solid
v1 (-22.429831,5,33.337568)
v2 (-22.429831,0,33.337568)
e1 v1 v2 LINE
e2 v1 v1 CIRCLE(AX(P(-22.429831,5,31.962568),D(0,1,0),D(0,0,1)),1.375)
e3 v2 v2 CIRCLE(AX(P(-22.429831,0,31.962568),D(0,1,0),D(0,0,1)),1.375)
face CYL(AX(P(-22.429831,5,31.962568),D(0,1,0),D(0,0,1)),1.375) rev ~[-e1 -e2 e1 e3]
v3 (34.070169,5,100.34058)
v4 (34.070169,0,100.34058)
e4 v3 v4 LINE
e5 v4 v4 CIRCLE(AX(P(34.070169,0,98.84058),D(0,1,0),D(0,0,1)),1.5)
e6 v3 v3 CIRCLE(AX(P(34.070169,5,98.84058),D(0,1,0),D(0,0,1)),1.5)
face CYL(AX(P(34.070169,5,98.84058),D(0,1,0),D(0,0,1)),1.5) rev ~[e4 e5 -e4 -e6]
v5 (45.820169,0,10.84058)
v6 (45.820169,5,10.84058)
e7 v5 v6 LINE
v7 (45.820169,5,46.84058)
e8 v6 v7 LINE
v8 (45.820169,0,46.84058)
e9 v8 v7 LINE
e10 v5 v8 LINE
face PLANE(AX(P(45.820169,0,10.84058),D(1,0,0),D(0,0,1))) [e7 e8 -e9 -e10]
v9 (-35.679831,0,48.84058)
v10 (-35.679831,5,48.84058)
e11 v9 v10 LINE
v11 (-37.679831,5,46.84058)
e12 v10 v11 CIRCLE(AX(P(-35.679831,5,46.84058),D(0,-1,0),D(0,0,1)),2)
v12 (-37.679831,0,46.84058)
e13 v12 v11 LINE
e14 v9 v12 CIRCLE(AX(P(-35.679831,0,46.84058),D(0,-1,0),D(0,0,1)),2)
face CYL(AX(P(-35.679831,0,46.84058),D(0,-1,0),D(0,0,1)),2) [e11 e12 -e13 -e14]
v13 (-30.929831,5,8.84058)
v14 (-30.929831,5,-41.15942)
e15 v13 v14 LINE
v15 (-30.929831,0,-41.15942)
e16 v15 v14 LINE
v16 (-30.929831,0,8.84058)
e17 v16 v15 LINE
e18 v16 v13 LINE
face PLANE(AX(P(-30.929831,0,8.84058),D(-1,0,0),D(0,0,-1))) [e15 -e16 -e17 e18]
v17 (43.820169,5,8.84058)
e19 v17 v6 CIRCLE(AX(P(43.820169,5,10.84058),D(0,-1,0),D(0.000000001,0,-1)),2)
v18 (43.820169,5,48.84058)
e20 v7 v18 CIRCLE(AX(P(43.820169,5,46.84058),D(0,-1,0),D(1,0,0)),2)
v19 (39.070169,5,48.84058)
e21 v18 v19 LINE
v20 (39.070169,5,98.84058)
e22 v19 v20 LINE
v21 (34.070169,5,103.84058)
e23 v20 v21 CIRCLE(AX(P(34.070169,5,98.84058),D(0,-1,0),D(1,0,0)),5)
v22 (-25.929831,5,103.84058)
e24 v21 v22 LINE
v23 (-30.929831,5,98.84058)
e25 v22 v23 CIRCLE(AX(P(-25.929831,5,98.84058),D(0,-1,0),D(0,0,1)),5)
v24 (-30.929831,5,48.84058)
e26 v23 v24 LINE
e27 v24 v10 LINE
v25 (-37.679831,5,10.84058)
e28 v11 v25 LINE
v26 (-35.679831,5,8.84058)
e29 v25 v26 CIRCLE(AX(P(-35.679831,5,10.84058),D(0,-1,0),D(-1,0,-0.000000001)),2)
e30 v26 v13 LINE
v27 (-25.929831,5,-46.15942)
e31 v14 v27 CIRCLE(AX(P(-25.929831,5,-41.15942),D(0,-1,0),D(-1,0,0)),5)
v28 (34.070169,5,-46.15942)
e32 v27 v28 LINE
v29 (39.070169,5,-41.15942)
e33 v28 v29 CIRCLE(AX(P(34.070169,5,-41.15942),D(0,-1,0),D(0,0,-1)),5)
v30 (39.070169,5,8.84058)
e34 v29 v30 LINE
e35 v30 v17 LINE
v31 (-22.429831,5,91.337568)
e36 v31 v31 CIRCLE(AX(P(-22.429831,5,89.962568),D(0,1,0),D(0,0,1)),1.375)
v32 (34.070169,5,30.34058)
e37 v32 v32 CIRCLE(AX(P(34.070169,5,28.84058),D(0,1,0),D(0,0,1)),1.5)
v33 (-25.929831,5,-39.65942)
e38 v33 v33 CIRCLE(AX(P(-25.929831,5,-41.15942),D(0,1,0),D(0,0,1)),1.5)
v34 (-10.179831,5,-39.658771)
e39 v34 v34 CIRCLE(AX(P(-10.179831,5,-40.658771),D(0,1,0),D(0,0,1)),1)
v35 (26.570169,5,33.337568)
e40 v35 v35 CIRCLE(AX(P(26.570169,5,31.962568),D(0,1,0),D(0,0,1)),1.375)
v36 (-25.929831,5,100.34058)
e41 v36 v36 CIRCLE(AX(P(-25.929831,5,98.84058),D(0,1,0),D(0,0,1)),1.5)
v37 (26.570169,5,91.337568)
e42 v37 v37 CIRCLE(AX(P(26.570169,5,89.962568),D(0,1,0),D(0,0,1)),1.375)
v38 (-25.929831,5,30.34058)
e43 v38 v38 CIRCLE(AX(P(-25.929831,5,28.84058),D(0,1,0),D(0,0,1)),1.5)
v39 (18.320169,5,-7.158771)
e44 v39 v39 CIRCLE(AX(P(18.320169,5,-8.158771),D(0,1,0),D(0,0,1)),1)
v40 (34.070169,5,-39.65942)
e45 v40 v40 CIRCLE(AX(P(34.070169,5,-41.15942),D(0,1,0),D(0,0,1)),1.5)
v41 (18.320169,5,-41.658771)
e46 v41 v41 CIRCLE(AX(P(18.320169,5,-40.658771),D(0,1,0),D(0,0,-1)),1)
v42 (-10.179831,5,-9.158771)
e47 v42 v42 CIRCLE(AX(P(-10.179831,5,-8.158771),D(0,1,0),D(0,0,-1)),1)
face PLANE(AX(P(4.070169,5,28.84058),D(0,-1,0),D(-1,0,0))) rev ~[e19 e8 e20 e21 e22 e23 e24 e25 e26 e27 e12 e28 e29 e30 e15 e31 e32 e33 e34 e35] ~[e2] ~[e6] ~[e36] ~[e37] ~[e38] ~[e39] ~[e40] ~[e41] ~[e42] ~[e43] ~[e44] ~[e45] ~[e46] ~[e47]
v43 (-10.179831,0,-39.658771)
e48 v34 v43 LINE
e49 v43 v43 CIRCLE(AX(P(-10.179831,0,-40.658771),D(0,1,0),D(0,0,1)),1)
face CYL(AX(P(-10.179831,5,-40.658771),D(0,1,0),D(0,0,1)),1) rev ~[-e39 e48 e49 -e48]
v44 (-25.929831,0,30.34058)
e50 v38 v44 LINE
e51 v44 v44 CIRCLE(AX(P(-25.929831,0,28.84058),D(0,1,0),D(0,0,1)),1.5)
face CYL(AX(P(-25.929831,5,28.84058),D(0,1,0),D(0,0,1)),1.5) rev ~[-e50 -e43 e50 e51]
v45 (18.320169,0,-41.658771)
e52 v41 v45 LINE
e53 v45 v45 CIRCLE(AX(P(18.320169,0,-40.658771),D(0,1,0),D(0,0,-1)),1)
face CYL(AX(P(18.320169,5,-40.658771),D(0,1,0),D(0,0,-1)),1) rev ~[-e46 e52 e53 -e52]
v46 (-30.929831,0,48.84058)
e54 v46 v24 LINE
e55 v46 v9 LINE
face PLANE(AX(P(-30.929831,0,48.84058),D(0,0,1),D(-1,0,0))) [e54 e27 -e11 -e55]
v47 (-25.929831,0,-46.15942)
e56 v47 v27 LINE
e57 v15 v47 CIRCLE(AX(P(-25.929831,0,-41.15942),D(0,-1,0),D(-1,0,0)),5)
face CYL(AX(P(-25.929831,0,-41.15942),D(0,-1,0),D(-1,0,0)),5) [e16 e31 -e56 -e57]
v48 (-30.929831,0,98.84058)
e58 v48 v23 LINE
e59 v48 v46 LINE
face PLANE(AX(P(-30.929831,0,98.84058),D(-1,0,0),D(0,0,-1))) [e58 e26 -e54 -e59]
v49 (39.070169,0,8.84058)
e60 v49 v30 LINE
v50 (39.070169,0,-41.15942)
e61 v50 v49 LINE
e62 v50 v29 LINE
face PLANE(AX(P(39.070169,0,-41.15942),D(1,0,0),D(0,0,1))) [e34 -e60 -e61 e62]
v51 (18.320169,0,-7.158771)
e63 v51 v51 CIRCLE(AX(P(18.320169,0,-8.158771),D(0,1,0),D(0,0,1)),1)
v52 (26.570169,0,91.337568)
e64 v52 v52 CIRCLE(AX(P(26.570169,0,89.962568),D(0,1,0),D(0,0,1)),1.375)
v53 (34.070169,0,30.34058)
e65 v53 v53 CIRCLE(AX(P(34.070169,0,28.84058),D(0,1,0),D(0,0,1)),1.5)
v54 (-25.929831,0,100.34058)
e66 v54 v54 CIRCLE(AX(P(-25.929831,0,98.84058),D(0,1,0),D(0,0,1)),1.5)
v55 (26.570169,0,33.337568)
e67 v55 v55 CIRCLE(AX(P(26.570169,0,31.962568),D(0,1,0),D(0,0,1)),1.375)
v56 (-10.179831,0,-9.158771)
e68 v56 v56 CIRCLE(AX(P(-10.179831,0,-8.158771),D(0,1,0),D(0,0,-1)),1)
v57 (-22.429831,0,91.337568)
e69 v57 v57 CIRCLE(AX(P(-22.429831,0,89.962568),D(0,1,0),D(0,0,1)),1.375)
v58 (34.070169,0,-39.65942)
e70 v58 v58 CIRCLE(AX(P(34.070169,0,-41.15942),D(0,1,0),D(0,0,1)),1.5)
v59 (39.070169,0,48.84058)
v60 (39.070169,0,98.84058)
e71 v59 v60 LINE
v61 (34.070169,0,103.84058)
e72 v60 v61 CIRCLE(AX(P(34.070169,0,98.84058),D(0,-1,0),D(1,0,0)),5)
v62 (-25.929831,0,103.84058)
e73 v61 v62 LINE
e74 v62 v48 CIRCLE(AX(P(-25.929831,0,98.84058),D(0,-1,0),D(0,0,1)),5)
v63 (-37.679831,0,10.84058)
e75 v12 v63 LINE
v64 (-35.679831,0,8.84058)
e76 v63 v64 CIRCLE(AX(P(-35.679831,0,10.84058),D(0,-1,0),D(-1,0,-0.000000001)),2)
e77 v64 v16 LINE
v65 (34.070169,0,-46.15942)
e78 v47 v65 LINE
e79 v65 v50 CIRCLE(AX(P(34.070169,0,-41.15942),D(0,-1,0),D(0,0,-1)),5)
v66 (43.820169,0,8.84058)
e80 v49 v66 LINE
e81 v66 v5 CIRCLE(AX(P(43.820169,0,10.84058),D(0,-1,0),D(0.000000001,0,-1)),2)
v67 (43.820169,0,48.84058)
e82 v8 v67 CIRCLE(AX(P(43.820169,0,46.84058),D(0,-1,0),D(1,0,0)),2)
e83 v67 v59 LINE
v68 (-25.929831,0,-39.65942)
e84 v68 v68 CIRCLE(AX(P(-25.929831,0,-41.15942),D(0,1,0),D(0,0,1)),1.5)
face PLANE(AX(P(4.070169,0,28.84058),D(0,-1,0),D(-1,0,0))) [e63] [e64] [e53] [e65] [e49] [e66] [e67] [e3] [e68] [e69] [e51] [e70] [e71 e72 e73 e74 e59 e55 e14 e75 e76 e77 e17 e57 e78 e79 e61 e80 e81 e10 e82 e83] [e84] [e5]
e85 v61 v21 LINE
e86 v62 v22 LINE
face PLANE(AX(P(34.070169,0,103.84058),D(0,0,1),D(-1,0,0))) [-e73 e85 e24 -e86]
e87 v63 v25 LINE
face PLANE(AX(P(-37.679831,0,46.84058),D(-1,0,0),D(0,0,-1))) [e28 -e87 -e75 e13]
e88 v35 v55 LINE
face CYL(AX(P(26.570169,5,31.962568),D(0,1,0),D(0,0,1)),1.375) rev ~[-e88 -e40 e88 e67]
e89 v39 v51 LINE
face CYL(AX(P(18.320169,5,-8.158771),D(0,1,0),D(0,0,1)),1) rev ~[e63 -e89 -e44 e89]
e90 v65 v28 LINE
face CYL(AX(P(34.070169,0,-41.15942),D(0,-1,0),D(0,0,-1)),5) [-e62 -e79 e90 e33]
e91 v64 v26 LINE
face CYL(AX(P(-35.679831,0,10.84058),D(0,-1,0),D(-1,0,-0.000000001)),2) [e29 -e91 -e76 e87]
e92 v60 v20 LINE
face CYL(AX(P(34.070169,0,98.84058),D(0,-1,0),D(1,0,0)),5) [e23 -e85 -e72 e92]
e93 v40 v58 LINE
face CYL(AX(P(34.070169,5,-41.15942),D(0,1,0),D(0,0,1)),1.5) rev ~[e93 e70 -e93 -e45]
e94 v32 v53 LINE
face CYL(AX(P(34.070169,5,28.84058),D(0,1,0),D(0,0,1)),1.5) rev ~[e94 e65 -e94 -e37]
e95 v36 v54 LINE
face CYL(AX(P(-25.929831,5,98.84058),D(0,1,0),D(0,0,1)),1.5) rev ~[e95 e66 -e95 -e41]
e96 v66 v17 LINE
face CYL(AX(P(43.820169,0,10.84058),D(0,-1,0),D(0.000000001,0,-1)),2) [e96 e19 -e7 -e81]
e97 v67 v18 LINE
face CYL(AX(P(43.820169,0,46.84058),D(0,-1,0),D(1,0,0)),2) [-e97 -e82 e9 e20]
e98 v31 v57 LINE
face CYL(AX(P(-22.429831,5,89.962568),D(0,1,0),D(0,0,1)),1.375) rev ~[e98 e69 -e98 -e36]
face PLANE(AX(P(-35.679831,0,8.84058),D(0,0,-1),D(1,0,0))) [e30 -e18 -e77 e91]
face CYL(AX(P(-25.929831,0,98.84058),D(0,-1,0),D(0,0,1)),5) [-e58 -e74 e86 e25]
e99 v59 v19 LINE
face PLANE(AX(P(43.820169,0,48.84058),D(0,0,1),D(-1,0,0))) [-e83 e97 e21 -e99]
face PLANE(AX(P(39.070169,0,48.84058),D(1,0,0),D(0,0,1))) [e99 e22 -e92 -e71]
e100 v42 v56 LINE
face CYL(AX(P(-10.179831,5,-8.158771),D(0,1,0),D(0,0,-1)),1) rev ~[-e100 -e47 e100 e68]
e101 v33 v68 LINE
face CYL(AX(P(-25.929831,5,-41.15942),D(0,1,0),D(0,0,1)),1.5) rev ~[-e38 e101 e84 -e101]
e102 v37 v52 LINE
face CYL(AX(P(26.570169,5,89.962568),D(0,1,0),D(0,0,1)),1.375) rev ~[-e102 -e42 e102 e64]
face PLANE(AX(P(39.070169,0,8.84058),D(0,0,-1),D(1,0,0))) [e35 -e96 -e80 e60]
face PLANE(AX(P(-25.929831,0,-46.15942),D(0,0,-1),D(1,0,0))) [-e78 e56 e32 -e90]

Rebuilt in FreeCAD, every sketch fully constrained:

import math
import FreeCAD as App
import Part
import Sketcher
from FreeCAD import Vector

doc = App.newDocument("Part")
body = doc.addObject("PartDesign::Body", "Body")

# Sketch on XZ plane
sketch1 = body.newObject("Sketcher::SketchObject", "Sketch")
sketch1.AttachmentSupport = (doc.getObject("XZ_Plane"), [""])
sketch1.MapMode = "FlatFace"
sketch1.addGeometry([
    Part.LineSegment(Vector(34.070169, -46.15942, 0), Vector(-25.929831, -46.15942, 0)),  # 0
    Part.ArcOfCircle(Part.Circle(Vector(-25.929831, -41.15942, 0), Vector(0, 0, 1), 5), math.radians(180), math.radians(270)),  # 1
    Part.LineSegment(Vector(-30.929831, -41.15942, 0), Vector(-30.929831, 8.84058, 0)),  # 2
    Part.LineSegment(Vector(-30.929831, 8.84058, 0), Vector(-35.679831, 8.84058, 0)),  # 3
    Part.ArcOfCircle(Part.Circle(Vector(-35.679831, 10.84058, 0), Vector(0, 0, 1), 2), math.radians(-180), math.radians(-90)),  # 4
    Part.LineSegment(Vector(-37.679831, 10.84058, 0), Vector(-37.679831, 46.84058, 0)),  # 5
    Part.ArcOfCircle(Part.Circle(Vector(-35.679831, 46.84058, 0), Vector(0, 0, 1), 2), math.radians(90), math.radians(180)),  # 6
    Part.LineSegment(Vector(-35.679831, 48.84058, 0), Vector(-30.929831, 48.84058, 0)),  # 7
    Part.LineSegment(Vector(-30.929831, 48.84058, 0), Vector(-30.929831, 98.84058, 0)),  # 8
    Part.ArcOfCircle(Part.Circle(Vector(-25.929831, 98.84058, 0), Vector(0, 0, 1), 5), math.radians(90), math.radians(180)),  # 9
    Part.LineSegment(Vector(-25.929831, 103.84058, 0), Vector(34.070169, 103.84058, 0)),  # 10
    Part.ArcOfCircle(Part.Circle(Vector(34.070169, 98.84058, 0), Vector(0, 0, 1), 5), math.radians(0), math.radians(90)),  # 11
    Part.LineSegment(Vector(39.070169, 98.84058, 0), Vector(39.070169, 48.84058, 0)),  # 12
    Part.LineSegment(Vector(39.070169, 48.84058, 0), Vector(43.820169, 48.84058, 0)),  # 13
    Part.ArcOfCircle(Part.Circle(Vector(43.820169, 46.84058, 0), Vector(0, 0, 1), 2), math.radians(0), math.radians(90)),  # 14
    Part.LineSegment(Vector(45.820169, 46.84058, 0), Vector(45.820169, 10.84058, 0)),  # 15
    Part.ArcOfCircle(Part.Circle(Vector(43.820169, 10.84058, 0), Vector(0, 0, 1), 2), math.radians(-90), math.radians(0)),  # 16
    Part.LineSegment(Vector(43.820169, 8.84058, 0), Vector(39.070169, 8.84058, 0)),  # 17
    Part.LineSegment(Vector(39.070169, 8.84058, 0), Vector(39.070169, -41.15942, 0)),  # 18
    Part.ArcOfCircle(Part.Circle(Vector(34.070169, -41.15942, 0), Vector(0, 0, 1), 5), math.radians(-90), math.radians(0)),  # 19
], False)
sketch1.addConstraint([
    Sketcher.Constraint("Tangent", 0, 2, 1, 2),
    Sketcher.Constraint("Tangent", 1, 1, 2, 1),
    Sketcher.Constraint("Coincident", 2, 2, 3, 1),
    Sketcher.Constraint("Tangent", 3, 2, 4, 2),
    Sketcher.Constraint("Tangent", 4, 1, 5, 1),
    Sketcher.Constraint("Tangent", 5, 2, 6, 2),
    Sketcher.Constraint("Tangent", 6, 1, 7, 1),
    Sketcher.Constraint("Coincident", 7, 2, 8, 1),
    Sketcher.Constraint("Tangent", 8, 2, 9, 2),
    Sketcher.Constraint("Tangent", 9, 1, 10, 1),
    Sketcher.Constraint("Tangent", 10, 2, 11, 2),
    Sketcher.Constraint("Tangent", 11, 1, 12, 1),
    Sketcher.Constraint("Coincident", 12, 2, 13, 1),
    Sketcher.Constraint("Tangent", 13, 2, 14, 2),
    Sketcher.Constraint("Tangent", 14, 1, 15, 1),
    Sketcher.Constraint("Tangent", 15, 2, 16, 2),
    Sketcher.Constraint("Tangent", 16, 1, 17, 1),
    Sketcher.Constraint("Coincident", 17, 2, 18, 1),
    Sketcher.Constraint("Tangent", 18, 2, 19, 2),
    Sketcher.Constraint("Tangent", 19, 1, 0, 1),
    Sketcher.Constraint("Horizontal", 0),
    Sketcher.Constraint("Vertical", 2),
    Sketcher.Constraint("Horizontal", 3),
    Sketcher.Constraint("Vertical", 5),
    Sketcher.Constraint("Horizontal", 7),
    Sketcher.Constraint("Vertical", 8),
    Sketcher.Constraint("Horizontal", 10),
    Sketcher.Constraint("Vertical", 12),
    Sketcher.Constraint("Horizontal", 13),
    Sketcher.Constraint("Vertical", 15),
    Sketcher.Constraint("Horizontal", 17),
    Sketcher.Constraint("Vertical", 18),
    Sketcher.Constraint("Equal", 4, 6),
    Sketcher.Constraint("Equal", 1, 9),
    Sketcher.Constraint("Equal", 9, 11),
    Sketcher.Constraint("Equal", 6, 14),
    Sketcher.Constraint("Equal", 14, 16),
    Sketcher.Constraint("Equal", 11, 19),
    Sketcher.Constraint("Horizontal", 6, 3, 14, 3),
    Sketcher.Constraint("Horizontal", 4, 3, 16, 3),
    Sketcher.Constraint("Vertical", 1, 3, 9, 3),
    Sketcher.Constraint("Vertical", 11, 3, 19, 3),
    Sketcher.Constraint("Equal", 7, 13),
    Sketcher.Constraint("Equal", 2, 8),
    Sketcher.Constraint("Radius", 1, 5.0),
    Sketcher.Constraint("Radius", 4, 2.0),
    Sketcher.Constraint("DistanceX", 0, 2, 0, 1, 60.0),
    Sketcher.Constraint("DistanceY", 2, 1, 2, 2, 50.0),
    Sketcher.Constraint("DistanceY", 5, 1, 5, 2, 36.0),
    Sketcher.Constraint("DistanceX", 3, 2, 3, 1, 4.75),
    Sketcher.Constraint("DistanceX", 1, 3, -1, 1, 25.929831),
    Sketcher.Constraint("DistanceY", 1, 3, -1, 1, 41.15942),
])
pad1 = body.newObject("PartDesign::Pad", "Pad")
pad1.Profile = sketch1
pad1.Length = 5
pad1.Reversed = True

# Sketch on XZ plane
sketch2 = body.newObject("Sketcher::SketchObject", "Sketch001")
sketch2.AttachmentSupport = (doc.getObject("XZ_Plane"), [""])
sketch2.MapMode = "FlatFace"
sketch2.AttachmentOffset = App.Placement(Vector(0, 0, -5), App.Rotation())
sketch2.addGeometry([
    Part.Circle(Vector(34.070169, -41.15942, 0), Vector(0, 0, 1), 1.5),  # 0
    Part.Circle(Vector(-25.929831, -41.15942, 0), Vector(0, 0, 1), 1.5),  # 1
    Part.Circle(Vector(-25.929831, 98.84058, 0), Vector(0, 0, 1), 1.5),  # 2
    Part.Circle(Vector(34.070169, 98.84058, 0), Vector(0, 0, 1), 1.5),  # 3
    Part.Circle(Vector(34.070169, 28.84058, 0), Vector(0, 0, 1), 1.5),  # 4
    Part.Circle(Vector(-25.929831, 28.84058, 0), Vector(0, 0, 1), 1.5),  # 5
    Part.Circle(Vector(26.570169, 31.962568, 0), Vector(0, 0, 1), 1.375),  # 6
    Part.Circle(Vector(-22.429831, 31.962568, 0), Vector(0, 0, 1), 1.375),  # 7
    Part.Circle(Vector(26.570169, 89.962568, 0), Vector(0, 0, 1), 1.375),  # 8
    Part.Circle(Vector(-22.429831, 89.962568, 0), Vector(0, 0, 1), 1.375),  # 9
    Part.Circle(Vector(-10.179831, -40.658771, 0), Vector(0, 0, 1), 1),  # 10
    Part.Circle(Vector(18.320169, -40.658771, 0), Vector(0, 0, 1), 1),  # 11
    Part.Circle(Vector(-10.179831, -8.158771, 0), Vector(0, 0, 1), 1),  # 12
    Part.Circle(Vector(18.320169, -8.158771, 0), Vector(0, 0, 1), 1),  # 13
], False)
sketch2.addConstraint([
    Sketcher.Constraint("Equal", 0, 1),
    Sketcher.Constraint("Equal", 1, 2),
    Sketcher.Constraint("Equal", 2, 3),
    Sketcher.Constraint("Equal", 3, 4),
    Sketcher.Constraint("Equal", 4, 5),
    Sketcher.Constraint("Equal", 6, 7),
    Sketcher.Constraint("Equal", 7, 8),
    Sketcher.Constraint("Equal", 8, 9),
    Sketcher.Constraint("Equal", 10, 11),
    Sketcher.Constraint("Equal", 11, 12),
    Sketcher.Constraint("Equal", 12, 13),
    Sketcher.Constraint("Horizontal", 0, 3, 1, 3),
    Sketcher.Constraint("Horizontal", 2, 3, 3, 3),
    Sketcher.Constraint("Horizontal", 4, 3, 5, 3),
    Sketcher.Constraint("Horizontal", 6, 3, 7, 3),
    Sketcher.Constraint("Horizontal", 8, 3, 9, 3),
    Sketcher.Constraint("Horizontal", 10, 3, 11, 3),
    Sketcher.Constraint("Horizontal", 12, 3, 13, 3),
    Sketcher.Constraint("Vertical", 1, 3, 2, 3),
    Sketcher.Constraint("Vertical", 0, 3, 3, 3),
    Sketcher.Constraint("Vertical", 3, 3, 4, 3),
    Sketcher.Constraint("Vertical", 2, 3, 5, 3),
    Sketcher.Constraint("Vertical", 6, 3, 8, 3),
    Sketcher.Constraint("Vertical", 7, 3, 9, 3),
    Sketcher.Constraint("Vertical", 10, 3, 12, 3),
    Sketcher.Constraint("Vertical", 11, 3, 13, 3),
    Sketcher.Constraint("Diameter", 0, 3.0),
    Sketcher.Constraint("Diameter", 10, 2.0),
    Sketcher.Constraint("Diameter", 6, 2.75),
    Sketcher.Constraint("DistanceX", 1, 3, 0, 3, 60.0),
    Sketcher.Constraint("DistanceY", 1, 3, 2, 3, 140.0),
    Sketcher.Constraint("DistanceY", 0, 3, 4, 3, 70.0),
    Sketcher.Constraint("DistanceX", 7, 3, 6, 3, 49.0),
    Sketcher.Constraint("DistanceY", 6, 3, 8, 3, 58.0),
    Sketcher.Constraint("DistanceX", 6, 3, 4, 3, 7.5),
    Sketcher.Constraint("DistanceX", 10, 3, 11, 3, 28.5),
    Sketcher.Constraint("DistanceY", 10, 3, 12, 3, 32.5),
    Sketcher.Constraint("DistanceX", 1, 3, 10, 3, 15.75),
    Sketcher.Constraint("DistanceX", -1, 1, 0, 3, 34.070169),
    Sketcher.Constraint("DistanceY", 0, 3, -1, 1, 41.15942),
    Sketcher.Constraint("DistanceY", 10, 3, -1, 1, 40.658771),
    Sketcher.Constraint("DistanceY", 10, 3, 7, 3, 72.621339),
])
pocket1 = body.newObject("PartDesign::Pocket", "Pocket")
pocket1.Profile = sketch2
pocket1.Type = "ThroughAll"
pocket1.Reversed = True

doc.recompute()
